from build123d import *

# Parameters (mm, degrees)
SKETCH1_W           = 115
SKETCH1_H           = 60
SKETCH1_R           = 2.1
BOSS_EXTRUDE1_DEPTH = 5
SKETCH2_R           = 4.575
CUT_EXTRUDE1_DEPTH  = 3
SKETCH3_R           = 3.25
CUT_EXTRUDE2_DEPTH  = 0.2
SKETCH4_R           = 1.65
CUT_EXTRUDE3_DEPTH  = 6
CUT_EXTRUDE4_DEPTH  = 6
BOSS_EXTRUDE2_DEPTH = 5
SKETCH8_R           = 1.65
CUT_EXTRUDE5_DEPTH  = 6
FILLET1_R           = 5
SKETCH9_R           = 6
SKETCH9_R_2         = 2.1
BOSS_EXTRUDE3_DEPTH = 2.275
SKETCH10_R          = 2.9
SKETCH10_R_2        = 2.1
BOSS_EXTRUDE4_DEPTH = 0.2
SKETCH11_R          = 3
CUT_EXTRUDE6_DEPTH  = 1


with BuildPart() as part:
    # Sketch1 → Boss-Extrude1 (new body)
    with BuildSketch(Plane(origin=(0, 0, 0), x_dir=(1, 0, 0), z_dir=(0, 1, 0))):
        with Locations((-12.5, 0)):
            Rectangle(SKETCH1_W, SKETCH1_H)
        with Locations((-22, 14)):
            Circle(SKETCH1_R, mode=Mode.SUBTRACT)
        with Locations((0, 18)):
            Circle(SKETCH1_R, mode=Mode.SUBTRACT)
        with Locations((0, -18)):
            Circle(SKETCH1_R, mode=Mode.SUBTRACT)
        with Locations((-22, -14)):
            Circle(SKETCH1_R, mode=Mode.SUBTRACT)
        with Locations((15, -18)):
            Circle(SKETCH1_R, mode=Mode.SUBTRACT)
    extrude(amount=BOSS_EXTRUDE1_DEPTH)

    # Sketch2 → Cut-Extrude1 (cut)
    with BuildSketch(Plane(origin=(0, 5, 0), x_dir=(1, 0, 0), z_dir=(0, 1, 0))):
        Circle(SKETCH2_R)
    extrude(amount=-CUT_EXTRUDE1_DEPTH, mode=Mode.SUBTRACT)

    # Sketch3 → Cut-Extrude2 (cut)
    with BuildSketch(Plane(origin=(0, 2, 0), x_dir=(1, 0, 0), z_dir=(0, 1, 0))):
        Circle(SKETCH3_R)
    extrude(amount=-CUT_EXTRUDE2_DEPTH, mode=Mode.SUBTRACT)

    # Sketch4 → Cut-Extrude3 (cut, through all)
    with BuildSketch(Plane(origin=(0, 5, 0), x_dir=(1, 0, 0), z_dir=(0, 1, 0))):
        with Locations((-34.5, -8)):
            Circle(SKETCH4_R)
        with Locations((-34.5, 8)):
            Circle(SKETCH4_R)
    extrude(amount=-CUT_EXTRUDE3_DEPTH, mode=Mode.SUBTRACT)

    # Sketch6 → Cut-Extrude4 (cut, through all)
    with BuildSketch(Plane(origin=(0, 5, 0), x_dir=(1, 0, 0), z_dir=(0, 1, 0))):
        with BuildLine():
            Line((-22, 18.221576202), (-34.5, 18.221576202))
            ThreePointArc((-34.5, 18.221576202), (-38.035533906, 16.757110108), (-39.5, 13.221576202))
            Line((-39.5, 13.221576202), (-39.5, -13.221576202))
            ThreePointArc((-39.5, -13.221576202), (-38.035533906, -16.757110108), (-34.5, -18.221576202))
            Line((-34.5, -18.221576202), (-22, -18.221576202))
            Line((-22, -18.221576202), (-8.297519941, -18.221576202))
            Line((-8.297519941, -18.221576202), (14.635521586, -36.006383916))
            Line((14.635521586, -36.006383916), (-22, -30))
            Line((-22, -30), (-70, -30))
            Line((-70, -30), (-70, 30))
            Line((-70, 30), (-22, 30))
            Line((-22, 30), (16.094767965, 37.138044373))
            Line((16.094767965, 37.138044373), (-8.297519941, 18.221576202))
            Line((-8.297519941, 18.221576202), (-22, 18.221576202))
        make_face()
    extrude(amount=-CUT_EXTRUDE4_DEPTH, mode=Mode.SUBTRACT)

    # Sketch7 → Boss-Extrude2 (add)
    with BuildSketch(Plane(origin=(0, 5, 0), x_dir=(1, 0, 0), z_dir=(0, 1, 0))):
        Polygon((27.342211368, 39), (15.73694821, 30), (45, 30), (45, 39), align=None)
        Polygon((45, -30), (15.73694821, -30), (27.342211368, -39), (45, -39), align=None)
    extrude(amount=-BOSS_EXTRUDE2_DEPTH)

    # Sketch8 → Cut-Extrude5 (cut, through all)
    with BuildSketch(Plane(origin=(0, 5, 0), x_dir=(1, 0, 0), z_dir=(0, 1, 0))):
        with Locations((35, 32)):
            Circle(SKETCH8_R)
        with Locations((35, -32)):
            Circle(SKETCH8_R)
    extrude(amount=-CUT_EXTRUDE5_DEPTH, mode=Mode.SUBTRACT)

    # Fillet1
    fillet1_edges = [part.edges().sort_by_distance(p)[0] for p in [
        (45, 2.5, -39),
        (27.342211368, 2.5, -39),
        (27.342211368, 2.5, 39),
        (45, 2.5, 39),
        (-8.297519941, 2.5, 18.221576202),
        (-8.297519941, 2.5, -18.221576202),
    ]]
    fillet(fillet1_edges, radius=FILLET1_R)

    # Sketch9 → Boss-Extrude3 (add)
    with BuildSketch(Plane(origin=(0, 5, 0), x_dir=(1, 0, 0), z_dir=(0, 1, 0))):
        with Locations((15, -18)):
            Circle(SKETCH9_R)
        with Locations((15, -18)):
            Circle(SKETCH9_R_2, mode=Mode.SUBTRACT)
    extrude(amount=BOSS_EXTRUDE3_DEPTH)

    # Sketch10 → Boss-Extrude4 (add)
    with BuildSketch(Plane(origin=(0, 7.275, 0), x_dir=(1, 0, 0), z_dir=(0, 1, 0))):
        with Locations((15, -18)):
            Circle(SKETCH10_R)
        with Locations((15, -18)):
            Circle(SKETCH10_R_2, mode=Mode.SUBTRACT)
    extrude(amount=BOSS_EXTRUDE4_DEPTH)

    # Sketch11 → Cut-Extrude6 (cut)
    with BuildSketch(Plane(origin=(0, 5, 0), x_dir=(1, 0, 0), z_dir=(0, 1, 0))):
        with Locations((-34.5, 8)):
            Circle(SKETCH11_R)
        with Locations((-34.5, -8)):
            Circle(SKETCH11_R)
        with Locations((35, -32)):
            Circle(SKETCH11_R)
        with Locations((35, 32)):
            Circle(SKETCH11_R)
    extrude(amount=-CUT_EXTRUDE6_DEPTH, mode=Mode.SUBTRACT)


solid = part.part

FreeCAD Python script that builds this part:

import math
import FreeCAD as App
import Part
import Sketcher
from FreeCAD import Vector


def edges_at(feature, points):
    """Names of the edges that pass closest to the given points."""
    edges = feature.Shape.Edges
    near = lambda p: min(range(len(edges)), key=lambda i: edges[i].distToShape(Part.Vertex(*p))[0])
    return sorted({f"Edge{near(p) + 1}" for p in points})

doc = App.newDocument("Part")
body = doc.addObject("PartDesign::Body", "Body")

# Sketch on XZ plane
sketch1 = body.newObject("Sketcher::SketchObject", "Sketch")
sketch1.AttachmentSupport = (doc.getObject("XZ_Plane"), [""])
sketch1.MapMode = "FlatFace"
sketch1.addGeometry(Part.LineSegment(Vector(-70, -30, 0), Vector(-70, 30, 0)), False)
sketch1.addGeometry(Part.LineSegment(Vector(-70, 30, 0), Vector(45, 30, 0)), False)
sketch1.addGeometry(Part.LineSegment(Vector(45, 30, 0), Vector(45, -30, 0)), False)
sketch1.addGeometry(Part.LineSegment(Vector(45, -30, 0), Vector(-70, -30, 0)), False)
sketch1.addGeometry(Part.Circle(Vector(-22, 14, 0), Vector(0, 0, 1), 2.1), False)
sketch1.addGeometry(Part.Circle(Vector(0, 18, 0), Vector(0, 0, 1), 2.1), False)
sketch1.addGeometry(Part.Circle(Vector(15, 18, 0), Vector(0, 0, 1), 2.1), False)
sketch1.addGeometry(Part.Circle(Vector(-22, -14, 0), Vector(0, 0, 1), 2.1), False)
sketch1.addGeometry(Part.Circle(Vector(0, -18, 0), Vector(0, 0, 1), 2.1), False)
sketch1.addConstraint(Sketcher.Constraint("Coincident", 0, 2, 1, 1))
sketch1.addConstraint(Sketcher.Constraint("Coincident", 1, 2, 2, 1))
sketch1.addConstraint(Sketcher.Constraint("Coincident", 2, 2, 3, 1))
sketch1.addConstraint(Sketcher.Constraint("Coincident", 3, 2, 0, 1))
sketch1.addConstraint(Sketcher.Constraint("Vertical", 0))
sketch1.addConstraint(Sketcher.Constraint("Horizontal", 1))
sketch1.addConstraint(Sketcher.Constraint("Vertical", 2))
sketch1.addConstraint(Sketcher.Constraint("Horizontal", 3))
sketch1.addConstraint(Sketcher.Constraint("Equal", 4, 5))
sketch1.addConstraint(Sketcher.Constraint("Equal", 5, 6))
sketch1.addConstraint(Sketcher.Constraint("Equal", 6, 7))
sketch1.addConstraint(Sketcher.Constraint("Equal", 7, 8))
sketch1.addConstraint(Sketcher.Constraint("Symmetric", 5, 3, 8, 3, -1, 1))
sketch1.addConstraint(Sketcher.Constraint("Symmetric", 4, 3, 7, 3, -1))
sketch1.addConstraint(Sketcher.Constraint("PointOnObject", 5, 3, -2))
sketch1.addConstraint(Sketcher.Constraint("Horizontal", 5, 3, 6, 3))
sketch1.addConstraint(Sketcher.Constraint("Diameter", 4, 4.2))
sketch1.addConstraint(Sketcher.Constraint("DistanceX", 1, 1, 1, 2, 115.0))
sketch1.addConstraint(Sketcher.Constraint("DistanceY", 0, 1, 0, 2, 60.0))
sketch1.addConstraint(Sketcher.Constraint("DistanceX", 4, 3, -1, 1, 22.0))
sketch1.addConstraint(Sketcher.Constraint("DistanceY", -1, 1, 4, 3, 14.0))
sketch1.addConstraint(Sketcher.Constraint("DistanceY", -1, 1, 5, 3, 18.0))
sketch1.addConstraint(Sketcher.Constraint("DistanceX", -1, 1, 6, 3, 15.0))
sketch1.addConstraint(Sketcher.Constraint("DistanceX", 0, 2, -1, 1, 70.0))
sketch1.addConstraint(Sketcher.Constraint("DistanceY", -1, 1, 0, 2, 30.0))
pad1 = body.newObject("PartDesign::Pad", "Pad")
pad1.Profile = sketch1
pad1.Length = 5
pad1.Reversed = True

# Sketch on XZ plane
sketch2 = body.newObject("Sketcher::SketchObject", "Sketch001")
sketch2.AttachmentSupport = (doc.getObject("XZ_Plane"), [""])
sketch2.MapMode = "FlatFace"
sketch2.AttachmentOffset = App.Placement(Vector(0, 0, -5), App.Rotation())
sketch2.addGeometry(Part.Circle(Vector(0, 0, 0), Vector(0, 0, 1), 4.6), False)
sketch2.addConstraint(Sketcher.Constraint("Coincident", 0, 3, -1, 1))
sketch2.addConstraint(Sketcher.Constraint("Diameter", 0, 9.15))
pocket1 = body.newObject("PartDesign::Pocket", "Pocket")
pocket1.Profile = sketch2
pocket1.Length = 3
pocket1.Reversed = True

# Sketch on XZ plane
sketch3 = body.newObject("Sketcher::SketchObject", "Sketch002")
sketch3.AttachmentSupport = (doc.getObject("XZ_Plane"), [""])
sketch3.MapMode = "FlatFace"
sketch3.AttachmentOffset = App.Placement(Vector(0, 0, -2), App.Rotation())
sketch3.addGeometry(Part.Circle(Vector(0, 0, 0), Vector(0, 0, 1), 3.2), False)
sketch3.addConstraint(Sketcher.Constraint("Coincident", 0, 3, -1, 1))
sketch3.addConstraint(Sketcher.Constraint("Diameter", 0, 6.5))
pocket2 = body.newObject("PartDesign::Pocket", "Pocket001")
pocket2.Profile = sketch3
pocket2.Length = 0.2
pocket2.Reversed = True

# Sketch on XZ plane
sketch4 = body.newObject("Sketcher::SketchObject", "Sketch003")
sketch4.AttachmentSupport = (doc.getObject("XZ_Plane"), [""])
sketch4.MapMode = "FlatFace"
sketch4.AttachmentOffset = App.Placement(Vector(0, 0, -5), App.Rotation())
sketch4.addGeometry(Part.Circle(Vector(-34.5, 8, 0), Vector(0, 0, 1), 1.6), False)
sketch4.addGeometry(Part.Circle(Vector(-34.5, -8, 0), Vector(0, 0, 1), 1.6), False)
sketch4.addConstraint(Sketcher.Constraint("Equal", 0, 1))
sketch4.addConstraint(Sketcher.Constraint("Symmetric", 0, 3, 1, 3, -1))
sketch4.addConstraint(Sketcher.Constraint("Diameter", 0, 3.3))
sketch4.addConstraint(Sketcher.Constraint("DistanceY", -1, 1, 0, 3, 8.0))
sketch4.addConstraint(Sketcher.Constraint("DistanceX", 0, 3, -1, 1, 34.5))
pocket3 = body.newObject("PartDesign::Pocket", "Pocket002")
pocket3.Profile = sketch4
pocket3.Type = "ThroughAll"
pocket3.Reversed = True

# Sketch on XZ plane
sketch5 = body.newObject("Sketcher::SketchObject", "Sketch004")
sketch5.AttachmentSupport = (doc.getObject("XZ_Plane"), [""])
sketch5.MapMode = "FlatFace"
sketch5.AttachmentOffset = App.Placement(Vector(0, 0, -5), App.Rotation())
sketch5.addGeometry(Part.ArcOfCircle(Part.Circle(Vector(-34, -13, 0), Vector(0, 0, 1), 5), math.radians(180), math.radians(270)), False)
sketch5.addGeometry(Part.LineSegment(Vector(-34, -18, 0), Vector(-8, -18, 0)), False)
sketch5.addGeometry(Part.LineSegment(Vector(-8, -18, 0), Vector(16, -37, 0)), False)
sketch5.addGeometry(Part.LineSegment(Vector(16, -37, 0), Vector(-22, -30, 0)), False)
sketch5.addGeometry(Part.LineSegment(Vector(-22, -30, 0), Vector(-70, -30, 0)), False)
sketch5.addGeometry(Part.LineSegment(Vector(-70, -30, 0), Vector(-70, 30, 0)), False)
sketch5.addGeometry(Part.LineSegment(Vector(-70, 30, 0), Vector(-22, 30, 0)), False)
sketch5.addGeometry(Part.LineSegment(Vector(-22, 30, 0), Vector(15, 36, 0)), False)
sketch5.addGeometry(Part.LineSegment(Vector(15, 36, 0), Vector(-8, 18, 0)), False)
sketch5.addGeometry(Part.LineSegment(Vector(-8, 18, 0), Vector(-34, 18, 0)), False)
sketch5.addGeometry(Part.ArcOfCircle(Part.Circle(Vector(-34, 13, 0), Vector(0, 0, 1), 5), math.radians(90), math.radians(180)), False)
sketch5.addGeometry(Part.LineSegment(Vector(-40, 13, 0), Vector(-40, -13, 0)), False)
sketch5.addConstraint(Sketcher.Constraint("Tangent", 0, 2, 1, 1))
sketch5.addConstraint(Sketcher.Constraint("Coincident", 1, 2, 2, 1))
sketch5.addConstraint(Sketcher.Constraint("Coincident", 2, 2, 3, 1))
sketch5.addConstraint(Sketcher.Constraint("Coincident", 3, 2, 4, 1))
sketch5.addConstraint(Sketcher.Constraint("Coincident", 4, 2, 5, 1))
sketch5.addConstraint(Sketcher.Constraint("Coincident", 5, 2, 6, 1))
sketch5.addConstraint(Sketcher.Constraint("Coincident", 6, 2, 7, 1))
sketch5.addConstraint(Sketcher.Constraint("Coincident", 7, 2, 8, 1))
sketch5.addConstraint(Sketcher.Constraint("Coincident", 8, 2, 9, 1))
sketch5.addConstraint(Sketcher.Constraint("Tangent", 9, 2, 10, 1))
sketch5.addConstraint(Sketcher.Constraint("Tangent", 10, 2, 11, 1))
sketch5.addConstraint(Sketcher.Constraint("Tangent", 11, 2, 0, 1))
sketch5.addConstraint(Sketcher.Constraint("Horizontal", 1))
sketch5.addConstraint(Sketcher.Constraint("Horizontal", 4))
sketch5.addConstraint(Sketcher.Constraint("Vertical", 5))
sketch5.addConstraint(Sketcher.Constraint("Horizontal", 6))
sketch5.addConstraint(Sketcher.Constraint("Horizontal", 9))
sketch5.addConstraint(Sketcher.Constraint("Vertical", 11))
sketch5.addConstraint(Sketcher.Constraint("Equal", 0, 10))
sketch5.addConstraint(Sketcher.Constraint("Symmetric", 3, 2, 6, 2, -1))
sketch5.addConstraint(Sketcher.Constraint("Symmetric", 1, 2, 8, 2, -1))
sketch5.addConstraint(Sketcher.Constraint("Radius", 0, 5.0))
sketch5.addConstraint(Sketcher.Constraint("DistanceX", 4, 2, 4, 1, 48.0))
sketch5.addConstraint(Sketcher.Constraint("DistanceY", 5, 1, 5, 2, 60.0))
sketch5.addConstraint(Sketcher.Constraint("DistanceX", 3, 2, -1, 1, 22.0))
sketch5.addConstraint(Sketcher.Constraint("DistanceX", 0, 3, -1, 1, 34.5))
sketch5.addConstraint(Sketcher.Constraint("DistanceX", 1, 1, 1, 2, 26.20248))
sketch5.addConstraint(Sketcher.Constraint("Distance", 7, 37.124629))
sketch5.addConstraint(Sketcher.Constraint("Distance", 8, 29.021092))
sketch5.addConstraint(Sketcher.Constraint("DistanceY", 11, 2, 11, 1, 26.443152))
sketch5.addConstraint(Sketcher.Constraint("DistanceY", 2, 2, 1, 2, 18.916468))
sketch5.addConstraint(Sketcher.Constraint("Distance", 2, 30.867725))
pocket4 = body.newObject("PartDesign::Pocket", "Pocket003")
pocket4.Profile = sketch5
pocket4.Type = "ThroughAll"
pocket4.Reversed = True

# Sketch on XZ plane
sketch6 = body.newObject("Sketcher::SketchObject", "Sketch005")
sketch6.AttachmentSupport = (doc.getObject("XZ_Plane"), [""])
sketch6.MapMode = "FlatFace"
sketch6.AttachmentOffset = App.Placement(Vector(0, 0, -5), App.Rotation())
sketch6.addGeometry(Part.LineSegment(Vector(27, -39, 0), Vector(16, -30, 0)), False)
sketch6.addGeometry(Part.LineSegment(Vector(16, -30, 0), Vector(45, -30, 0)), False)
sketch6.addGeometry(Part.LineSegment(Vector(45, -30, 0), Vector(45, -39, 0)), False)
sketch6.addGeometry(Part.LineSegment(Vector(45, -39, 0), Vector(27, -39, 0)), False)
sketch6.addGeometry(Part.LineSegment(Vector(45, 30, 0), Vector(16, 30, 0)), False)
sketch6.addGeometry(Part.LineSegment(Vector(16, 30, 0), Vector(27, 39, 0)), False)
sketch6.addGeometry(Part.LineSegment(Vector(27, 39, 0), Vector(45, 39, 0)), False)
sketch6.addGeometry(Part.LineSegment(Vector(45, 39, 0), Vector(45, 30, 0)), False)
sketch6.addConstraint(Sketcher.Constraint("Coincident", 0, 2, 1, 1))
sketch6.addConstraint(Sketcher.Constraint("Coincident", 1, 2, 2, 1))
sketch6.addConstraint(Sketcher.Constraint("Coincident", 2, 2, 3, 1))
sketch6.addConstraint(Sketcher.Constraint("Coincident", 3, 2, 0, 1))
sketch6.addConstraint(Sketcher.Constraint("Coincident", 4, 2, 5, 1))
sketch6.addConstraint(Sketcher.Constraint("Coincident", 5, 2, 6, 1))
sketch6.addConstraint(Sketcher.Constraint("Coincident", 6, 2, 7, 1))
sketch6.addConstraint(Sketcher.Constraint("Coincident", 7, 2, 4, 1))
sketch6.addConstraint(Sketcher.Constraint("Horizontal", 1))
sketch6.addConstraint(Sketcher.Constraint("Vertical", 2))
sketch6.addConstraint(Sketcher.Constraint("Horizontal", 3))
sketch6.addConstraint(Sketcher.Constraint("Horizontal", 4))
sketch6.addConstraint(Sketcher.Constraint("Horizontal", 6))
sketch6.addConstraint(Sketcher.Constraint("Vertical", 7))
sketch6.addConstraint(Sketcher.Constraint("Symmetric", 0, 2, 4, 2, -1))
sketch6.addConstraint(Sketcher.Constraint("Symmetric", 3, 2, 5, 2, -1))
sketch6.addConstraint(Sketcher.Constraint("Vertical", 2, 2, 6, 2))
sketch6.addConstraint(Sketcher.Constraint("DistanceY", 2, 2, 2, 1, 9.0))
sketch6.addConstraint(Sketcher.Constraint("DistanceY", 0, 2, -1, 1, 30.0))
sketch6.addConstraint(Sketcher.Constraint("DistanceX", -1, 1, 1, 2, 45.0))
sketch6.addConstraint(Sketcher.Constraint("DistanceX", 1, 1, 1, 2, 29.263052))
sketch6.addConstraint(Sketcher.Constraint("DistanceX", 3, 2, 3, 1, 17.657789))
pad2 = body.newObject("PartDesign::Pad", "Pad001")
pad2.Profile = sketch6
pad2.Length = 5

# Sketch on XZ plane
sketch7 = body.newObject("Sketcher::SketchObject", "Sketch006")
sketch7.AttachmentSupport = (doc.getObject("XZ_Plane"), [""])
sketch7.MapMode = "FlatFace"
sketch7.AttachmentOffset = App.Placement(Vector(0, 0, -5), App.Rotation())
sketch7.addGeometry(Part.Circle(Vector(35, -32, 0), Vector(0, 0, 1), 1.6), False)
sketch7.addGeometry(Part.Circle(Vector(35, 32, 0), Vector(0, 0, 1), 1.6), False)
sketch7.addConstraint(Sketcher.Constraint("Equal", 0, 1))
sketch7.addConstraint(Sketcher.Constraint("Symmetric", 0, 3, 1, 3, -1))
sketch7.addConstraint(Sketcher.Constraint("Diameter", 0, 3.3))
sketch7.addConstraint(Sketcher.Constraint("DistanceX", -1, 1, 0, 3, 35.0))
sketch7.addConstraint(Sketcher.Constraint("DistanceY", 0, 3, -1, 1, 32.0))
pocket5 = body.newObject("PartDesign::Pocket", "Pocket004")
pocket5.Profile = sketch7
pocket5.Type = "ThroughAll"
pocket5.Reversed = True
doc.recompute()

fillet = body.newObject("PartDesign::Fillet", "Fillet")
fillet.Base = (pocket5, edges_at(pocket5, [
    (45, 2.5, -39),
    (27.342, 2.5, -39),
    (27.342, 2.5, 39),
    (45, 2.5, 39),
    (-8.298, 2.5, 18.222),
    (-8.298, 2.5, -18.222),
]))
fillet.Radius = 5

# Sketch on XZ plane
sketch8 = body.newObject("Sketcher::SketchObject", "Sketch007")
sketch8.AttachmentSupport = (doc.getObject("XZ_Plane"), [""])
sketch8.MapMode = "FlatFace"
sketch8.AttachmentOffset = App.Placement(Vector(0, 0, -5), App.Rotation())
sketch8.addGeometry(Part.Circle(Vector(15, 18, 0), Vector(0, 0, 1), 6), False)
sketch8.addGeometry(Part.Circle(Vector(15, 18, 0), Vector(0, 0, 1), 2.1), False)
sketch8.addConstraint(Sketcher.Constraint("Coincident", 1, 3, 0, 3))
sketch8.addConstraint(Sketcher.Constraint("Diameter", 0, 12.0))
sketch8.addConstraint(Sketcher.Constraint("Diameter", 1, 4.2))
sketch8.addConstraint(Sketcher.Constraint("DistanceX", -1, 1, 0, 3, 15.0))
sketch8.addConstraint(Sketcher.Constraint("DistanceY", -1, 1, 0, 3, 18.0))
pad3 = body.newObject("PartDesign::Pad", "Pad002")
pad3.Profile = sketch8
pad3.Length = 2.275
pad3.Reversed = True

# Sketch on XZ plane
sketch9 = body.newObject("Sketcher::SketchObject", "Sketch008")
sketch9.AttachmentSupport = (doc.getObject("XZ_Plane"), [""])
sketch9.MapMode = "FlatFace"
sketch9.AttachmentOffset = App.Placement(Vector(0, 0, -7.275), App.Rotation())
sketch9.addGeometry(Part.Circle(Vector(15, 18, 0), Vector(0, 0, 1), 2.9), False)
sketch9.addGeometry(Part.Circle(Vector(15, 18, 0), Vector(0, 0, 1), 2.1), False)
sketch9.addConstraint(Sketcher.Constraint("Coincident", 1, 3, 0, 3))
sketch9.addConstraint(Sketcher.Constraint("Diameter", 0, 5.8))
sketch9.addConstraint(Sketcher.Constraint("Diameter", 1, 4.2))
sketch9.addConstraint(Sketcher.Constraint("DistanceX", -1, 1, 0, 3, 15.0))
sketch9.addConstraint(Sketcher.Constraint("DistanceY", -1, 1, 0, 3, 18.0))
pad4 = body.newObject("PartDesign::Pad", "Pad003")
pad4.Profile = sketch9
pad4.Length = 0.2
pad4.Reversed = True

# Sketch on XZ plane
sketch10 = body.newObject("Sketcher::SketchObject", "Sketch009")
sketch10.AttachmentSupport = (doc.getObject("XZ_Plane"), [""])
sketch10.MapMode = "FlatFace"
sketch10.AttachmentOffset = App.Placement(Vector(0, 0, -5), App.Rotation())
sketch10.addGeometry(Part.Circle(Vector(-34.5, -8, 0), Vector(0, 0, 1), 3), False)
sketch10.addGeometry(Part.Circle(Vector(-34.5, 8, 0), Vector(0, 0, 1), 3), False)
sketch10.addGeometry(Part.Circle(Vector(35, 32, 0), Vector(0, 0, 1), 3), False)
sketch10.addGeometry(Part.Circle(Vector(35, -32, 0), Vector(0, 0, 1), 3), False)
sketch10.addConstraint(Sketcher.Constraint("Equal", 0, 1))
sketch10.addConstraint(Sketcher.Constraint("Equal", 1, 2))
sketch10.addConstraint(Sketcher.Constraint("Equal", 2, 3))
sketch10.addConstraint(Sketcher.Constraint("Symmetric", 0, 3, 1, 3, -1))
sketch10.addConstraint(Sketcher.Constraint("Symmetric", 2, 3, 3, 3, -1))
sketch10.addConstraint(Sketcher.Constraint("Diameter", 0, 6.0))
sketch10.addConstraint(Sketcher.Constraint("DistanceY", 0, 3, -1, 1, 8.0))
sketch10.addConstraint(Sketcher.Constraint("DistanceX", -1, 1, 2, 3, 35.0))
sketch10.addConstraint(Sketcher.Constraint("DistanceY", -1, 1, 2, 3, 32.0))
sketch10.addConstraint(Sketcher.Constraint("DistanceX", 0, 3, -1, 1, 34.5))
pocket6 = body.newObject("PartDesign::Pocket", "Pocket005")
pocket6.Profile = sketch10
pocket6.Length = 1
pocket6.Reversed = True

doc.recompute()
